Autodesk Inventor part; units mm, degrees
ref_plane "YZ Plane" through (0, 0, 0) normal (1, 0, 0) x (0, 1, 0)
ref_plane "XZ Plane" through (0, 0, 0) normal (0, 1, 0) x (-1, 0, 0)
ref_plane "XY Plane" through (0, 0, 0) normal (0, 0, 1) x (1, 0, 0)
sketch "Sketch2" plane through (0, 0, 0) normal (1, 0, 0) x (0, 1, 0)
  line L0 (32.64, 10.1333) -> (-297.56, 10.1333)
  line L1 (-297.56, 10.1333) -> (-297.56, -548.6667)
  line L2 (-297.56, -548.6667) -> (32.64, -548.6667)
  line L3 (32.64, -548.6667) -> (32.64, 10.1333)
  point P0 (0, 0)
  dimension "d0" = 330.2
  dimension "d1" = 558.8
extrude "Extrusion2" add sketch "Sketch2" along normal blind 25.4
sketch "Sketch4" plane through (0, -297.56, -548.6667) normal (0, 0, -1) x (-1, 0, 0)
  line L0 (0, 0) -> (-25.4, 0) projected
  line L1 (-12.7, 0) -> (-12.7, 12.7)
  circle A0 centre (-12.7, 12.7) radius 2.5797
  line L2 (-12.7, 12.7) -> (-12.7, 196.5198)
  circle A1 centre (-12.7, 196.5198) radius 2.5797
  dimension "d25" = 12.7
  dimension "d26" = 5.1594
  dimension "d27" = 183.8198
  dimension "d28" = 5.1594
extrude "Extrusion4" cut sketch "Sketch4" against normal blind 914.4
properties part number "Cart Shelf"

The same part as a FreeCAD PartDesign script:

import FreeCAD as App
import Part
import Sketcher

V = App.Vector
Q = App.Units.Quantity

doc = App.newDocument("Part")
params = doc.addObject("Spreadsheet::Sheet", "Params")
for row, (alias, value) in enumerate([
    ("sketch1_width", "13 in"),
    ("sketch1_height", "22 in"),
    ("pad1_length", "1 in"),
    ("sketch2_diameter", "0.203126 in"),
    ("pocket1_length", "36 in"),
], start=1):
    params.set(f"A{row}", alias)
    params.set(f"B{row}", "=" + value)
    params.setAlias(f"B{row}", alias)

body = doc.addObject("PartDesign::Body", "Body")

sketch1 = body.newObject("Sketcher::SketchObject", "Sketch")
sketch1.AttachmentSupport = (doc.getObject("YZ_Plane"), [""])
sketch1.MapMode = "FlatFace"
sketch1.addGeometry([
    Part.LineSegment(V(32.64, -548.6667, 0), V(32.64, 10.1333, 0)),
    Part.LineSegment(V(32.64, 10.1333, 0), V(-297.56, 10.1333, 0)),
    Part.LineSegment(V(-297.56, 10.1333, 0), V(-297.56, -548.6667, 0)),
    Part.LineSegment(V(-297.56, -548.6667, 0), V(32.64, -548.6667, 0)),
], False)
sketch1.addConstraint([
    Sketcher.Constraint("Coincident", 0, 2, 1, 1),
    Sketcher.Constraint("Coincident", 1, 2, 2, 1),
    Sketcher.Constraint("Coincident", 2, 2, 3, 1),
    Sketcher.Constraint("Coincident", 3, 2, 0, 1),
    Sketcher.Constraint("Vertical", 0),
    Sketcher.Constraint("Horizontal", 1),
    Sketcher.Constraint("Vertical", 2),
    Sketcher.Constraint("Horizontal", 3),
    Sketcher.Constraint("DistanceX", 1, 2, 1, 1, Q("13 in")),
    Sketcher.Constraint("DistanceY", 0, 1, 0, 2, Q("22 in")),
    Sketcher.Constraint("DistanceX", -1, 1, 0, 2, Q("32.64 mm")),
    Sketcher.Constraint("DistanceY", -1, 1, 0, 2, Q("10.1333 mm")),
])
sketch1.setExpression("Constraints[8]", "Params.sketch1_width")
sketch1.setExpression("Constraints[9]", "Params.sketch1_height")
pad1 = body.newObject("PartDesign::Pad", "Pad")
pad1.Profile = sketch1
pad1.setExpression("Length", "Params.pad1_length")

sketch2 = body.newObject("Sketcher::SketchObject", "Sketch001")
sketch2.AttachmentSupport = (doc.getObject("XY_Plane"), [""])
sketch2.MapMode = "FlatFace"
sketch2.AttachmentOffset = App.Placement(V(0, 0, -548.6667), App.Rotation())
sketch2.addGeometry([
    Part.Circle(V(12.7, -284.86, 0), V(0, 0, 1), 2.5797),
    Part.Circle(V(12.7, -101.0402, 0), V(0, 0, 1), 2.5797),
], False)
sketch2.addConstraint([
    Sketcher.Constraint("Equal", 0, 1),
    Sketcher.Constraint("Vertical", 0, 3, 1, 3),
    Sketcher.Constraint("Diameter", 0, Q("0.203126 in")),
    Sketcher.Constraint("DistanceX", -1, 1, 0, 3, Q("0.5 in")),
    Sketcher.Constraint("DistanceY", 0, 3, 1, 3, Q("7.237 in")),
    Sketcher.Constraint("DistanceY", 0, 3, -1, 1, Q("284.86 mm")),
])
sketch2.setExpression("Constraints[2]", "Params.sketch2_diameter")
pocket1 = body.newObject("PartDesign::Pocket", "Pocket")
pocket1.Profile = sketch2
pocket1.setExpression("Length", "Params.pocket1_length")
pocket1.Reversed = True

doc.recompute()
